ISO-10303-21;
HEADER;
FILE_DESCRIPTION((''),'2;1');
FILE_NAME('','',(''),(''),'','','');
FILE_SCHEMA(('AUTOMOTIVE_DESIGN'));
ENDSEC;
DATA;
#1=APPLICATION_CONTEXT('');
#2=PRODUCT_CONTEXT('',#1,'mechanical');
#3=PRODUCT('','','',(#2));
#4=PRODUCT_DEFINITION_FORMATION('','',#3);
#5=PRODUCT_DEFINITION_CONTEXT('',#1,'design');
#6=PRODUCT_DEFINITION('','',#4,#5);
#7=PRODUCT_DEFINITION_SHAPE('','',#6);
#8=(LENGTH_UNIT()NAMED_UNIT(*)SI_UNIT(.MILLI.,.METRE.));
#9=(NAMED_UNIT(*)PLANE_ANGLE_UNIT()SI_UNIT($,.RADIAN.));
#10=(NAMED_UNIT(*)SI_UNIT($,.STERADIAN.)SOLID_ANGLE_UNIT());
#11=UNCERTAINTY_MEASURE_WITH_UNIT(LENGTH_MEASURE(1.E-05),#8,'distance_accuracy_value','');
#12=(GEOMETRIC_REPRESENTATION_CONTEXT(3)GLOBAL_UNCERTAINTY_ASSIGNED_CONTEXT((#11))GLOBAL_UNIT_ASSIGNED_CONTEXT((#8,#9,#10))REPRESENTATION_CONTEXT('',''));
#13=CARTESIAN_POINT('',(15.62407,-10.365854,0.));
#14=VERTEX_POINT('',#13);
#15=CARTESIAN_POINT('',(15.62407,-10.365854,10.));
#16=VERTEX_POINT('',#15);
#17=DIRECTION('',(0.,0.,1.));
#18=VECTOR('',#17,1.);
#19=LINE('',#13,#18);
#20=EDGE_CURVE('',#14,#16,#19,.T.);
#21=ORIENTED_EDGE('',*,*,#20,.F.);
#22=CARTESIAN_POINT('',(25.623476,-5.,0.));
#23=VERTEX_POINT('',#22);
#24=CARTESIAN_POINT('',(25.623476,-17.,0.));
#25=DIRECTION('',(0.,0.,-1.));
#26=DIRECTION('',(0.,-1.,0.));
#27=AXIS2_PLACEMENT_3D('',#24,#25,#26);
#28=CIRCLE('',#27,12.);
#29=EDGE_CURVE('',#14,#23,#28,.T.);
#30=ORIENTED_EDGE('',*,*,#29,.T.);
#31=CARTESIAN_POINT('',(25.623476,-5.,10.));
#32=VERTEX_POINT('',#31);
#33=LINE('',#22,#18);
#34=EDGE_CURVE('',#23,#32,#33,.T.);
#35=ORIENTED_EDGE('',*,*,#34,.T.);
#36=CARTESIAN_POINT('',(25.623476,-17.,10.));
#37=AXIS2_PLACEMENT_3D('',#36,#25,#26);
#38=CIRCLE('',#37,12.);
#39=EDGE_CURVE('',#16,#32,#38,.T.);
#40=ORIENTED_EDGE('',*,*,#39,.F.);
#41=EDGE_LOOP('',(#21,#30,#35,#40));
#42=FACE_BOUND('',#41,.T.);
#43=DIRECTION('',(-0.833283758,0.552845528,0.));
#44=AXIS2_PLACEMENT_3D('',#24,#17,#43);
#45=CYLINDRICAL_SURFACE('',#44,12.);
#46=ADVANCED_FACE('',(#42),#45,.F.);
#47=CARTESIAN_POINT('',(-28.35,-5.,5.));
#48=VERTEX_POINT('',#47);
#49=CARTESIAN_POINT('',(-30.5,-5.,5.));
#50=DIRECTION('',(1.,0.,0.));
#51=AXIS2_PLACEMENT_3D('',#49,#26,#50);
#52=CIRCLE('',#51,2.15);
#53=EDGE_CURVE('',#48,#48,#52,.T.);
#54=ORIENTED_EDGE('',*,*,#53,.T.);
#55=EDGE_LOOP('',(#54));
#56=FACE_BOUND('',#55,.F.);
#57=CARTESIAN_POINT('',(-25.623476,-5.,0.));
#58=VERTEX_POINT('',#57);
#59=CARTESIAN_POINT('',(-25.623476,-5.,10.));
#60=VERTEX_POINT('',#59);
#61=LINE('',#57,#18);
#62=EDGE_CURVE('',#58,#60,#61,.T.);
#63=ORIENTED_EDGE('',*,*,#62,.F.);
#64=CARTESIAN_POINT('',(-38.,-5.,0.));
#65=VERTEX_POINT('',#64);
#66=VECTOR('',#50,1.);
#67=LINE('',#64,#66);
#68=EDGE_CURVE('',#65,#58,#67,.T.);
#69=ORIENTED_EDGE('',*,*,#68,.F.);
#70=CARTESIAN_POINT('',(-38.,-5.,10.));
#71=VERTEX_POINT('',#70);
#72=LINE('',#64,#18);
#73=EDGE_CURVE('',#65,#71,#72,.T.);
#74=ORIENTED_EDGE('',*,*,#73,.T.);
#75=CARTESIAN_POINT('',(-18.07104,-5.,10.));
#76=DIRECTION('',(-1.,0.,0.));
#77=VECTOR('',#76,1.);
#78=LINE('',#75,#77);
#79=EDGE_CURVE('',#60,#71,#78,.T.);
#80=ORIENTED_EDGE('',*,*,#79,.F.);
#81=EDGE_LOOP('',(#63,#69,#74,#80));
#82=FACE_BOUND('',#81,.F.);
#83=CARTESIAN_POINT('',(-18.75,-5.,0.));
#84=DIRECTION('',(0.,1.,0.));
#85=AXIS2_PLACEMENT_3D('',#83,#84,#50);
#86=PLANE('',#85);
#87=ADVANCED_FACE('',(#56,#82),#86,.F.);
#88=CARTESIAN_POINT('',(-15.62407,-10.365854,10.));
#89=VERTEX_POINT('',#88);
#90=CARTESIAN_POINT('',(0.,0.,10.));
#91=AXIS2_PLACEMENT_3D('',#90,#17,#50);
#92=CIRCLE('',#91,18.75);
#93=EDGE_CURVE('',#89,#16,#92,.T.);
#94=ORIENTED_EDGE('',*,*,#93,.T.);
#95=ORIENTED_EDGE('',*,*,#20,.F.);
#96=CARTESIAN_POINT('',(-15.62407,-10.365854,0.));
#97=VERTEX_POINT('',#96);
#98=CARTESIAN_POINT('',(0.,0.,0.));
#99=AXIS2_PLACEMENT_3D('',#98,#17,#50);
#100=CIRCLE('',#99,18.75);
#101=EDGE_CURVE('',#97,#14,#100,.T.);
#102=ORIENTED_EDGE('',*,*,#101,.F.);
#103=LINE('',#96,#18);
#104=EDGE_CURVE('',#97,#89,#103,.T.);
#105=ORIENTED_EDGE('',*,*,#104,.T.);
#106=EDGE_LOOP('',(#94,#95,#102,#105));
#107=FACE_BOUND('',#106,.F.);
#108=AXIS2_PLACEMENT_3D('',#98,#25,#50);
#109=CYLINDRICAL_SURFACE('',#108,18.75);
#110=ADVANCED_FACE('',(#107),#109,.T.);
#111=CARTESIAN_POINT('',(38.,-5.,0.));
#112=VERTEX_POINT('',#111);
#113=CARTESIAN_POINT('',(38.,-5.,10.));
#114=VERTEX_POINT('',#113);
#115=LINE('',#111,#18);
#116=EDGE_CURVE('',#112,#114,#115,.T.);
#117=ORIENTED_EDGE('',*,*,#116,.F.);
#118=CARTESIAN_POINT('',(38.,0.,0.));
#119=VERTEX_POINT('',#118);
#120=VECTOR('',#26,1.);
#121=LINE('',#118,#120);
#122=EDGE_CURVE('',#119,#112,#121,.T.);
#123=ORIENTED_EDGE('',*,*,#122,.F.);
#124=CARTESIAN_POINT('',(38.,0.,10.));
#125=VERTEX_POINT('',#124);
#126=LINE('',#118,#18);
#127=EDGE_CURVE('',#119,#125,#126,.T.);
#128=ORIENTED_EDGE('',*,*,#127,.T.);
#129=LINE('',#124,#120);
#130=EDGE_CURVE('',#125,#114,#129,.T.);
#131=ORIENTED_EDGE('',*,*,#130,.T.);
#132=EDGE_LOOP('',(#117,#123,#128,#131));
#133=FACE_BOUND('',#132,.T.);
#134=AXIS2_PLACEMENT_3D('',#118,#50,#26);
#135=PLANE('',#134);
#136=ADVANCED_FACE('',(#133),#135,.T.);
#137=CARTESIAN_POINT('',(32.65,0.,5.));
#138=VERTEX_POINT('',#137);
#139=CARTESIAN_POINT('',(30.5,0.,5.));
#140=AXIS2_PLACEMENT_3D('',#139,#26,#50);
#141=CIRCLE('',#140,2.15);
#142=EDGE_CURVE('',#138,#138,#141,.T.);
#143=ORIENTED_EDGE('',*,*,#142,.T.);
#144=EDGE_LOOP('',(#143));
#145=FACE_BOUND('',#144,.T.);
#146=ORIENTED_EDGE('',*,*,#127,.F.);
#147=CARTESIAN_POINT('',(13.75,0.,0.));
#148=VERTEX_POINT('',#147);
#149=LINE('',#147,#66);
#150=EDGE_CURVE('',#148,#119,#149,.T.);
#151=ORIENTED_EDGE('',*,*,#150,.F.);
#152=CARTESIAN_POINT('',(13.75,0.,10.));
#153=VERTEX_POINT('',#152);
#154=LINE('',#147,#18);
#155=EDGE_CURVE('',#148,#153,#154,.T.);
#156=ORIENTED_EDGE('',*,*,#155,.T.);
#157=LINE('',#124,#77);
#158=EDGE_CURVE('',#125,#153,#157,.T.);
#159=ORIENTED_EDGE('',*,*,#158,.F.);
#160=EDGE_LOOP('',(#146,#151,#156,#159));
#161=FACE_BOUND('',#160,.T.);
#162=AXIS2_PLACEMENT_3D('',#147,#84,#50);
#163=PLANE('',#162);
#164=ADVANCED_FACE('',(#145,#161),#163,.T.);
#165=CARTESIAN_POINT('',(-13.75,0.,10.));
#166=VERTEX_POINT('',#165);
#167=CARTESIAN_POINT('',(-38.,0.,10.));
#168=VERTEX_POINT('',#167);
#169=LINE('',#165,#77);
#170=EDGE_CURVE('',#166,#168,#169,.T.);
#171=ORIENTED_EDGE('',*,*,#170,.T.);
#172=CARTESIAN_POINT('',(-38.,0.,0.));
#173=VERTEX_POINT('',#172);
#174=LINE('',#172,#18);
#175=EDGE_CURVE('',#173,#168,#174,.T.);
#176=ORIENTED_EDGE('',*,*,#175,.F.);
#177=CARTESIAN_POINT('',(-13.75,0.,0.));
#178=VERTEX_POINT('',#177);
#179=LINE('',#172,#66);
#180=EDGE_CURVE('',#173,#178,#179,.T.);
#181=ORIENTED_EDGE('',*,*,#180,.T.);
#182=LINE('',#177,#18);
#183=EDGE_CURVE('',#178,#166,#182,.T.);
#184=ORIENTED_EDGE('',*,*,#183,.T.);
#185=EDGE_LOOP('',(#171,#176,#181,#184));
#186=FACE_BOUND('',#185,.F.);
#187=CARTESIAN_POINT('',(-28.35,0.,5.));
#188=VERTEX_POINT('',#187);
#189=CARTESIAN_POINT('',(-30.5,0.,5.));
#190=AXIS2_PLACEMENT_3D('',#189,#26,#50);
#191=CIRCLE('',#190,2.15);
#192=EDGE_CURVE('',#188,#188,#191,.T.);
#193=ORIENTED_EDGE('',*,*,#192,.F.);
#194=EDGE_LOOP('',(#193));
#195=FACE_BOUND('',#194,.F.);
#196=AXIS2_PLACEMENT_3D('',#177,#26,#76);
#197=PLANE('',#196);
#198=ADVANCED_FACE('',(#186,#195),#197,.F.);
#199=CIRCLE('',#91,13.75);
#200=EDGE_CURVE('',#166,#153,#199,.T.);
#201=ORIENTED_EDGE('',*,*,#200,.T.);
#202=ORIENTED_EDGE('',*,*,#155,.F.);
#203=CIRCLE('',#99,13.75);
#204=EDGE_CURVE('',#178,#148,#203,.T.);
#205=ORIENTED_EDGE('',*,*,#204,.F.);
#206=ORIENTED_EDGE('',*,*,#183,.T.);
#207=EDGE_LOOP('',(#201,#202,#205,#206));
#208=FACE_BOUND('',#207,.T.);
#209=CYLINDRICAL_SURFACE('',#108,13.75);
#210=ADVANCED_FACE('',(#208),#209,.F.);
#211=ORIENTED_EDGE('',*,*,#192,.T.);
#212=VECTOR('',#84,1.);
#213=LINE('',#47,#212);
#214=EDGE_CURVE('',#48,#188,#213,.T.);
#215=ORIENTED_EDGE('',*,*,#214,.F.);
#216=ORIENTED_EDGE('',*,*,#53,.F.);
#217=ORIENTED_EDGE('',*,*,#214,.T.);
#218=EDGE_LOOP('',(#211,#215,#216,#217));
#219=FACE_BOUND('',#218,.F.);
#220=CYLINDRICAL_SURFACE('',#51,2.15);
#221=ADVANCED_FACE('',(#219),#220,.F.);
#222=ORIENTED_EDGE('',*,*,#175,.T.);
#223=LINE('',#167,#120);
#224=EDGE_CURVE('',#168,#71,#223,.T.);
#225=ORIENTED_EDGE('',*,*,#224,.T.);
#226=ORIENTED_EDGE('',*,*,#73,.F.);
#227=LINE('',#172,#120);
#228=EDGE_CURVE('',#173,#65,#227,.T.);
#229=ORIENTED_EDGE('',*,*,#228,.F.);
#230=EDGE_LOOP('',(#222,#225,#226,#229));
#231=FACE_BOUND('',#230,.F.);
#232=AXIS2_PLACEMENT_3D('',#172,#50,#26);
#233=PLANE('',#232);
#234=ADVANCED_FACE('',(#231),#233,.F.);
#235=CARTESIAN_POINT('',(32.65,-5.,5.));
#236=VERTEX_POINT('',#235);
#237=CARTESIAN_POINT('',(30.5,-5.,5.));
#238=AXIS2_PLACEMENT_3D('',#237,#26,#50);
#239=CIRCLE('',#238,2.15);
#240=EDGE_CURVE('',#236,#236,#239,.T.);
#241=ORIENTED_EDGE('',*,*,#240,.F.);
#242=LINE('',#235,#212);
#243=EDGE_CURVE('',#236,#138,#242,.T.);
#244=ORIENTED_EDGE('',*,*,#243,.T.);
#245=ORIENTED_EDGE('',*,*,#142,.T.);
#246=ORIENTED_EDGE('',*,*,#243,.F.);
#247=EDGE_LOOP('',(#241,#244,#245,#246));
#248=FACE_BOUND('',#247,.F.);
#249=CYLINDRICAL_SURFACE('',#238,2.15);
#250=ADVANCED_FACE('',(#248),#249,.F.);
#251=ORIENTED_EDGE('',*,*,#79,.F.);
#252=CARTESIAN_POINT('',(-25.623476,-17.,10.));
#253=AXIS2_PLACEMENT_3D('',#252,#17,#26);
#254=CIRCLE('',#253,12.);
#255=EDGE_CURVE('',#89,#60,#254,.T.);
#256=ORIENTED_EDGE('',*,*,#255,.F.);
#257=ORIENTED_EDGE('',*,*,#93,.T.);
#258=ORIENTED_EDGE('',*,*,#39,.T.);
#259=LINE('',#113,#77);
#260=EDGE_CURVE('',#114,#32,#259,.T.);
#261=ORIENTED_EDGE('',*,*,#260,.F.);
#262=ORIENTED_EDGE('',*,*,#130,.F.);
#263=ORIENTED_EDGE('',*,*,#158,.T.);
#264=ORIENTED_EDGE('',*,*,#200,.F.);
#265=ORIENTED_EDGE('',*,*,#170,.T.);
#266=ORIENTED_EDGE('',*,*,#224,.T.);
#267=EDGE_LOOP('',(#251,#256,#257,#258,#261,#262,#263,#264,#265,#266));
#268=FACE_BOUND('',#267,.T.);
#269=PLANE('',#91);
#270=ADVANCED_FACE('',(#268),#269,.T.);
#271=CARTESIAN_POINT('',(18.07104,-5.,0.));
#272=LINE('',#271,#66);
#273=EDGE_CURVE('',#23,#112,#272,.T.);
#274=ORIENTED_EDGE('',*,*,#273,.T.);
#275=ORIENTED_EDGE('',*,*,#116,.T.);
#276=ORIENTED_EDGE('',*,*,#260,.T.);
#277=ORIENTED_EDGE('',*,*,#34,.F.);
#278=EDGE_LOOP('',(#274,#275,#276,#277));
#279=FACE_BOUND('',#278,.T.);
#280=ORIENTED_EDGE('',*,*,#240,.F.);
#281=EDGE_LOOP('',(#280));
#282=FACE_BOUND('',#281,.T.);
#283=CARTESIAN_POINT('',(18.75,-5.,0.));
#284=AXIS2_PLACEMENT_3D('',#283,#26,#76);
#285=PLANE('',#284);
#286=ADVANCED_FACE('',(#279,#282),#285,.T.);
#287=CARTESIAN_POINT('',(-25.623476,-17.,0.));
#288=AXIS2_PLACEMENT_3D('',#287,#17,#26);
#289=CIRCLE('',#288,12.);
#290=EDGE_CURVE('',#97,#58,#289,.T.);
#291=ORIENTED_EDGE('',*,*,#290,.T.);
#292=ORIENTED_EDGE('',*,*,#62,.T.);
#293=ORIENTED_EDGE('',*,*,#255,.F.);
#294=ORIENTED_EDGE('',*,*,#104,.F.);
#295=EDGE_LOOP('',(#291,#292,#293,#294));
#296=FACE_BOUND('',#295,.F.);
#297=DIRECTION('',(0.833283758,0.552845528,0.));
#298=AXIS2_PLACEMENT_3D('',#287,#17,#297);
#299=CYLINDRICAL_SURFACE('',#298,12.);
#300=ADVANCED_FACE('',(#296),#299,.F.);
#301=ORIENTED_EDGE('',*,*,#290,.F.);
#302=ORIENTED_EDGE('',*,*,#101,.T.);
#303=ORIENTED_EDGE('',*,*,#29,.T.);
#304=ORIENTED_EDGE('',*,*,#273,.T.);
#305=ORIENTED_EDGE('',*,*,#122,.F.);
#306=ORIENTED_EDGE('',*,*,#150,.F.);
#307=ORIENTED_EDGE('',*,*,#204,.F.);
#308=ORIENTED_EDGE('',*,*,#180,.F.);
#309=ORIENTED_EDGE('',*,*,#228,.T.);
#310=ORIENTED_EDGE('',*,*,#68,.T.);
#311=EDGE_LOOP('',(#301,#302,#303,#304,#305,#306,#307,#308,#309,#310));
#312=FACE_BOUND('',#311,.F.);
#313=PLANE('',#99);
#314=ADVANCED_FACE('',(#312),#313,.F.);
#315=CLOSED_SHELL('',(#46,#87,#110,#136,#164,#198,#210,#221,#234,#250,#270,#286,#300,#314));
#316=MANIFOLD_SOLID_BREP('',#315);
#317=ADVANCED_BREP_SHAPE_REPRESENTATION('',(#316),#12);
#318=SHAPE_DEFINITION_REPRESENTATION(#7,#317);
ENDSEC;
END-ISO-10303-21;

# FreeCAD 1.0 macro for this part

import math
import FreeCAD as App
import Part
import Sketcher

V = App.Vector
Q = App.Units.Quantity


def edges_at(feature, points):
    """Names of the edges that pass closest to the given points."""
    edges = feature.Shape.Edges
    near = lambda p: min(range(len(edges)), key=lambda i: edges[i].distToShape(Part.Vertex(*p))[0])
    return sorted({f"Edge{near(p) + 1}" for p in points})

doc = App.newDocument("Part")
body = doc.addObject("PartDesign::Body", "Body")

# Sketch on XY plane
sketch1 = body.newObject("Sketcher::SketchObject", "Sketch")
sketch1.AttachmentSupport = (doc.getObject("XY_Plane"), [""])
sketch1.MapMode = "FlatFace"
sketch1.addGeometry(Part.ArcOfCircle(Part.Circle(V(0, 0, 0), V(0, 0, 1), 18.75), math.radians(-164.53399), math.radians(-15.46601)), False)
sketch1.addGeometry(Part.LineSegment(V(18.07104, -5, 0), V(38, -5, 0)), False)
sketch1.addGeometry(Part.LineSegment(V(38, -5, 0), V(38, 0, 0)), False)
sketch1.addGeometry(Part.LineSegment(V(38, 0, 0), V(13.75, 0, 0)), False)
sketch1.addGeometry(Part.ArcOfCircle(Part.Circle(V(0, 0, 0), V(0, 0, 1), 13.75), math.radians(180), math.radians(360)), False)
sketch1.addGeometry(Part.LineSegment(V(-13.75, 0, 0), V(-38, 0, 0)), False)
sketch1.addGeometry(Part.LineSegment(V(-38, 0, 0), V(-38, -5, 0)), False)
sketch1.addGeometry(Part.LineSegment(V(-38, -5, 0), V(-18.07104, -5, 0)), False)
sketch1.addConstraint(Sketcher.Constraint("Coincident", 0, 2, 1, 1))
sketch1.addConstraint(Sketcher.Constraint("Coincident", 1, 2, 2, 1))
sketch1.addConstraint(Sketcher.Constraint("Coincident", 2, 2, 3, 1))
sketch1.addConstraint(Sketcher.Constraint("Coincident", 3, 2, 4, 2))
sketch1.addConstraint(Sketcher.Constraint("Coincident", 4, 1, 5, 1))
sketch1.addConstraint(Sketcher.Constraint("Coincident", 5, 2, 6, 1))
sketch1.addConstraint(Sketcher.Constraint("Coincident", 6, 2, 7, 1))
sketch1.addConstraint(Sketcher.Constraint("Coincident", 7, 2, 0, 1))
sketch1.addConstraint(Sketcher.Constraint("Horizontal", 1))
sketch1.addConstraint(Sketcher.Constraint("Vertical", 2))
sketch1.addConstraint(Sketcher.Constraint("Horizontal", 3))
sketch1.addConstraint(Sketcher.Constraint("Horizontal", 5))
sketch1.addConstraint(Sketcher.Constraint("Vertical", 6))
sketch1.addConstraint(Sketcher.Constraint("Horizontal", 7))
sketch1.addConstraint(Sketcher.Constraint("Coincident", 0, 3, -1, 1))
sketch1.addConstraint(Sketcher.Constraint("Coincident", 4, 3, -1, 1))
sketch1.addConstraint(Sketcher.Constraint("Symmetric", 2, 2, 5, 2, -1, 1))
sketch1.addConstraint(Sketcher.Constraint("PointOnObject", 2, 2, -1))
sketch1.addConstraint(Sketcher.Constraint("Horizontal", 1, 2, 6, 2))
sketch1.addConstraint(Sketcher.Constraint("DistanceY", 2, 1, 2, 2, Q("5 mm")))
sketch1.addConstraint(Sketcher.Constraint("Radius", 4, Q("13.75 mm")))
sketch1.addConstraint(Sketcher.Constraint("Radius", 0, Q("18.75 mm")))
sketch1.addConstraint(Sketcher.Constraint("DistanceX", -1, 1, 1, 2, Q("38 mm")))
pad1 = body.newObject("PartDesign::Pad", "Pad")
pad1.Profile = sketch1
pad1.Length = 10

# Sketch on XZ plane
sketch2 = body.newObject("Sketcher::SketchObject", "Sketch001")
sketch2.AttachmentSupport = (doc.getObject("XZ_Plane"), [""])
sketch2.MapMode = "FlatFace"
sketch2.AttachmentOffset = App.Placement(V(0, 0, 5), App.Rotation())
sketch2.addGeometry(Part.Circle(V(-30.5, 5, 0), V(0, 0, 1), 2.15), False)
sketch2.addGeometry(Part.Circle(V(30.5, 5, 0), V(0, 0, 1), 2.15), False)
sketch2.addConstraint(Sketcher.Constraint("Equal", 0, 1))
sketch2.addConstraint(Sketcher.Constraint("Symmetric", 0, 3, 1, 3, -2))
sketch2.addConstraint(Sketcher.Constraint("Diameter", 0, Q("4.3 mm")))
sketch2.addConstraint(Sketcher.Constraint("DistanceY", -1, 1, 0, 3, Q("5 mm")))
sketch2.addConstraint(Sketcher.Constraint("DistanceX", 0, 3, 1, 3, Q("61 mm")))
pocket1 = body.newObject("PartDesign::Pocket", "Pocket")
pocket1.Profile = sketch2
pocket1.Length = 5
doc.recompute()

fillet = body.newObject("PartDesign::Fillet", "Fillet")
fillet.Base = (pocket1, edges_at(pocket1, [(-18.071, -5, 5), (18.071, -5, 5)]))
fillet.Radius = 12

doc.recompute()
